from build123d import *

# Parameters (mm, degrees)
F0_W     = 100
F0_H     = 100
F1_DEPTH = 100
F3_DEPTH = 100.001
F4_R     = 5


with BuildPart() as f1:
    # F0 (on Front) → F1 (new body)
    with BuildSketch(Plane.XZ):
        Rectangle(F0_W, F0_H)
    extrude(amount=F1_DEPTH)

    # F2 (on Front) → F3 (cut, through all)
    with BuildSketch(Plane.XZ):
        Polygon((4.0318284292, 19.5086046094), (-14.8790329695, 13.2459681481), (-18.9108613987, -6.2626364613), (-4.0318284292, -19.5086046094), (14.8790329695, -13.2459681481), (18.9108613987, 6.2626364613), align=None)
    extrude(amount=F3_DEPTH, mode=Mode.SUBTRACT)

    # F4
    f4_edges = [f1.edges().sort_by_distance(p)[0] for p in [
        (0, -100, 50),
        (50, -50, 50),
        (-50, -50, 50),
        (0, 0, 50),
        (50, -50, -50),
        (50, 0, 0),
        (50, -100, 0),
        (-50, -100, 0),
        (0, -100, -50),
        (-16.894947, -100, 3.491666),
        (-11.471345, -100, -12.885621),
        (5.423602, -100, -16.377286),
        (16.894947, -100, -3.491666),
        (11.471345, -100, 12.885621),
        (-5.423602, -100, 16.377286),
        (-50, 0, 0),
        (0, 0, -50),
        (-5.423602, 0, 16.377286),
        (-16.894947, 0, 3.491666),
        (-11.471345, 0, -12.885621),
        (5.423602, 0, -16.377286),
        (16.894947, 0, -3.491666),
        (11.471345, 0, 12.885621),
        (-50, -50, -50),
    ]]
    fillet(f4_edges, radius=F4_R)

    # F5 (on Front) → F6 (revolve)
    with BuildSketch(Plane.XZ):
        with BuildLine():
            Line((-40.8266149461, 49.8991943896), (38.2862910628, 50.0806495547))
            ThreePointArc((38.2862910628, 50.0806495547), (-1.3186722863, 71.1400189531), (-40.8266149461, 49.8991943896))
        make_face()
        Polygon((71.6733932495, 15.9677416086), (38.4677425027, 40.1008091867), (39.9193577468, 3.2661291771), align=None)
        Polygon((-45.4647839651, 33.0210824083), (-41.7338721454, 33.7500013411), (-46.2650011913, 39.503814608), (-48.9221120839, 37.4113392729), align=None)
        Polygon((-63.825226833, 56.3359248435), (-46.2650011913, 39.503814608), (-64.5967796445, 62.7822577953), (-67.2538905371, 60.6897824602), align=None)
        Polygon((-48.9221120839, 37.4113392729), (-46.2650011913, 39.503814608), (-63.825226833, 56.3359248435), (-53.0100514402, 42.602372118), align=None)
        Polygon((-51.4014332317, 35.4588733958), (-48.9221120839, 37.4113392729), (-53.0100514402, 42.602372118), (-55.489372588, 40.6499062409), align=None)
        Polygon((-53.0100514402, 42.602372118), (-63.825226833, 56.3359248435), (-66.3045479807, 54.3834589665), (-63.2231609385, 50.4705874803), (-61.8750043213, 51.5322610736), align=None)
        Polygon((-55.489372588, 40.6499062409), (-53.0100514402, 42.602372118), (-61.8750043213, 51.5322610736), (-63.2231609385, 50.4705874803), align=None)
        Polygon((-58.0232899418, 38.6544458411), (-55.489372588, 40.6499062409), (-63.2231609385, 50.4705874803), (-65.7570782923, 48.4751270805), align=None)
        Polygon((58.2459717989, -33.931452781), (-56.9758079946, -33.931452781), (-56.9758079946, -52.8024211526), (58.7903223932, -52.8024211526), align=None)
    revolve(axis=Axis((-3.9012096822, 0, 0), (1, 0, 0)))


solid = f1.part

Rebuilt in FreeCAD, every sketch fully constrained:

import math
import FreeCAD as App
import Part
import Sketcher

V = App.Vector


def edges_at(feature, points):
    """Names of the edges that pass closest to the given points."""
    edges = feature.Shape.Edges
    near = lambda p: min(range(len(edges)), key=lambda i: edges[i].distToShape(Part.Vertex(*p))[0])
    return sorted({f"Edge{near(p) + 1}" for p in points})


def add_polygon(sketch, points):
    """Adds a closed chain of lines whose ends are joined by coincident constraints."""
    first, n = sketch.GeometryCount, len(points)
    for a, b in zip(points, points[1:] + points[:1]):
        sketch.addGeometry(Part.LineSegment(App.Vector(*a, 0), App.Vector(*b, 0)), False)
    for i in range(n):
        sketch.addConstraint(Sketcher.Constraint("Coincident", first + i, 2, first + (i + 1) % n, 1))

doc = App.newDocument("Part")
body = doc.addObject("PartDesign::Body", "Body")

sketch1 = body.newObject("Sketcher::SketchObject", "Sketch")
sketch1.AttachmentSupport = (doc.getObject("XZ_Plane"), [""])
sketch1.MapMode = "FlatFace"
add_polygon(sketch1, [(-50, 50), (-50, -50), (50, -50), (50, 50)])
sketch1.addConstraint([
    Sketcher.Constraint("Vertical", 0),
    Sketcher.Constraint("Horizontal", 1),
    Sketcher.Constraint("Vertical", 2),
    Sketcher.Constraint("Horizontal", 3),
    Sketcher.Constraint("Symmetric", 0, 2, 2, 2, -1, 1),
    Sketcher.Constraint("Equal", 3, 0),
    Sketcher.Constraint("DistanceX", 1, 1, 1, 2, 100.0),
])
pad1 = body.newObject("PartDesign::Pad", "Pad")
pad1.Profile = sketch1
pad1.Length = 100

sketch2 = body.newObject("Sketcher::SketchObject", "Sketch001")
sketch2.AttachmentSupport = (doc.getObject("XZ_Plane"), [""])
sketch2.MapMode = "FlatFace"
add_polygon(sketch2, [(4.031828, 19.508605), (-14.879033, 13.245968), (-18.910861, -6.262636), (-4.031828, -19.508605), (14.879033, -13.245968), (18.910861, 6.262636)])
sketch2.addConstraint([
    Sketcher.Constraint("Symmetric", 0, 2, 3, 2, -1, 1),
    Sketcher.Constraint("Symmetric", 1, 2, 4, 2, -1, 1),
    Sketcher.Constraint("Symmetric", 2, 2, 5, 2, -1, 1),
    Sketcher.Constraint("Equal", 0, 1),
    Sketcher.Constraint("Equal", 1, 2),
    Sketcher.Constraint("DistanceY", -1, 1, 0, 2, 13.245968),
    Sketcher.Constraint("DistanceX", 1, 2, -1, 1, 18.910861),
    Sketcher.Constraint("DistanceX", 2, 2, -1, 1, 4.031828),
    Sketcher.Constraint("DistanceX", 1, 2, 0, 2, 4.031828),
])
pocket1 = body.newObject("PartDesign::Pocket", "Pocket")
pocket1.Profile = sketch2
pocket1.Type = "ThroughAll"
pocket1.Reversed = True
doc.recompute()

fillet = body.newObject("PartDesign::Fillet", "Fillet")
fillet.Base = (pocket1, edges_at(pocket1, [
    (0, -100, 50),
    (50, -50, 50),
    (-50, -50, 50),
    (0, 0, 50),
    (50, -50, -50),
    (50, 0, 0),
    (50, -100, 0),
    (-50, -100, 0),
    (0, -100, -50),
    (-16.895, -100, 3.492),
    (-11.471, -100, -12.886),
    (5.424, -100, -16.377),
    (16.895, -100, -3.492),
    (11.471, -100, 12.886),
    (-5.424, -100, 16.377),
    (-50, 0, 0),
    (0, 0, -50),
    (-5.424, 0, 16.377),
    (-16.895, 0, 3.492),
    (-11.471, 0, -12.886),
    (5.424, 0, -16.377),
    (16.895, 0, -3.492),
    (11.471, 0, 12.886),
    (-50, -50, -50),
]))
fillet.Radius = 5

sketch3 = body.newObject("Sketcher::SketchObject", "Sketch002")
sketch3.AttachmentSupport = (doc.getObject("XZ_Plane"), [""])
sketch3.MapMode = "FlatFace"
sketch3.addGeometry(Part.LineSegment(V(-40.826615, 49.899194, 0), V(38.286291, 50.08065, 0)), False)
sketch3.addGeometry(Part.ArcOfCircle(Part.Circle(V(-1.209574, 23.57429, 0), V(0, 0, 1), 47.565854), math.radians(33.866247), math.radians(146.396583)), False)
add_polygon(sketch3, [(71.673393, 15.967742), (38.467743, 40.100809), (39.919358, 3.266129)])
add_polygon(sketch3, [(-45.464784, 33.021082), (-41.733872, 33.750001), (-46.265001, 39.503815), (-64.59678, 62.782258), (-67.253891, 60.689782), (-63.825227, 56.335925), (-66.304548, 54.383459), (-63.223161, 50.470587), (-65.757078, 48.475127), (-58.02329, 38.654446), (-55.489373, 40.649906), (-51.401433, 35.458873), (-48.922112, 37.411339)])
add_polygon(sketch3, [(58.245972, -33.931453), (-56.975808, -33.931453), (-56.975808, -52.802421), (58.790322, -52.802421)])
sketch3.addConstraint([
    Sketcher.Constraint("Coincident", 0, 1, 1, 2),
    Sketcher.Constraint("Coincident", 1, 1, 0, 2),
    Sketcher.Constraint("Horizontal", 18),
    Sketcher.Constraint("Vertical", 19),
    Sketcher.Constraint("Horizontal", 20),
    Sketcher.Constraint("Parallel", 6, 7),
    Sketcher.Constraint("Perpendicular", 7, 8),
    Sketcher.Constraint("Perpendicular", 8, 9),
    Sketcher.Constraint("Perpendicular", 9, 10),
    Sketcher.Constraint("Perpendicular", 10, 11),
    Sketcher.Constraint("Perpendicular", 11, 12),
    Sketcher.Constraint("Perpendicular", 12, 13),
    Sketcher.Constraint("Perpendicular", 13, 14),
    Sketcher.Constraint("Perpendicular", 14, 15),
    Sketcher.Constraint("Perpendicular", 15, 16),
    Sketcher.Constraint("Perpendicular", 16, 17),
    Sketcher.Constraint("Equal", 12, 14),
    Sketcher.Constraint("Equal", 10, 16),
    Sketcher.Constraint("DistanceY", -1, 1, 5, 2, 33.750001),
    Sketcher.Constraint("DistanceX", 6, 2, -1, 1, 46.265001),
    Sketcher.Constraint("Radius", 1, 47.565854),
    Sketcher.Constraint("DistanceX", 18, 2, 18, 1, 115.22178),
    Sketcher.Constraint("DistanceX", 20, 1, 20, 2, 115.76613),
    Sketcher.Constraint("DistanceY", 19, 2, 19, 1, 18.870968),
    Sketcher.Constraint("DistanceY", 10, 2, 7, 2, 8.398799),
    Sketcher.Constraint("DistanceX", 12, 2, 7, 2, 1.160299),
    Sketcher.Constraint("DistanceX", 14, 2, 5, 2, 13.7555),
    Sketcher.Constraint("DistanceY", 18, 2, 13, 2, 72.585899),
    Sketcher.Constraint("Distance", 5, 3.80145),
    Sketcher.Constraint("Distance", 13, 12.50029),
    Sketcher.Constraint("DistanceY", -1, 1, 1, 3, 23.57429),
    Sketcher.Constraint("DistanceX", -1, 1, 1, 1, 38.286291),
    Sketcher.Constraint("DistanceY", -1, 1, 1, 1, 50.08065),
    Sketcher.Constraint("DistanceY", -1, 1, 2, 2, 40.100809),
    Sketcher.Constraint("DistanceY", -1, 1, 3, 2, 3.266129),
    Sketcher.Constraint("DistanceY", -1, 1, 4, 2, 15.967742),
    Sketcher.Constraint("DistanceX", 7, 2, -1, 1, 64.59678),
    Sketcher.Constraint("DistanceX", 8, 2, -1, 1, 67.253891),
    Sketcher.Constraint("DistanceY", -1, 1, 10, 2, 54.383459),
    Sketcher.Constraint("DistanceX", 11, 2, -1, 1, 63.223161),
    Sketcher.Constraint("DistanceY", -1, 1, 16, 2, 37.411339),
    Sketcher.Constraint("DistanceY", 19, 2, -1, 1, 52.802421),
    Sketcher.Constraint("DistanceX", -1, 1, 21, 2, 58.245972),
    Sketcher.Constraint("DistanceX", 0, 1, 1, 3, 39.617041),
    Sketcher.Constraint("DistanceX", 1, 1, 2, 2, 0.181451),
    Sketcher.Constraint("DistanceX", 2, 2, 4, 2, 33.205651),
    Sketcher.Constraint("DistanceX", 5, 2, 3, 2, 81.65323),
])
revolution = body.newObject("PartDesign::Revolution", "Revolution")
revolution.Profile = sketch3
revolution.ReferenceAxis = (sketch3, ["H_Axis"])
revolution.Angle = 360

doc.recompute()
